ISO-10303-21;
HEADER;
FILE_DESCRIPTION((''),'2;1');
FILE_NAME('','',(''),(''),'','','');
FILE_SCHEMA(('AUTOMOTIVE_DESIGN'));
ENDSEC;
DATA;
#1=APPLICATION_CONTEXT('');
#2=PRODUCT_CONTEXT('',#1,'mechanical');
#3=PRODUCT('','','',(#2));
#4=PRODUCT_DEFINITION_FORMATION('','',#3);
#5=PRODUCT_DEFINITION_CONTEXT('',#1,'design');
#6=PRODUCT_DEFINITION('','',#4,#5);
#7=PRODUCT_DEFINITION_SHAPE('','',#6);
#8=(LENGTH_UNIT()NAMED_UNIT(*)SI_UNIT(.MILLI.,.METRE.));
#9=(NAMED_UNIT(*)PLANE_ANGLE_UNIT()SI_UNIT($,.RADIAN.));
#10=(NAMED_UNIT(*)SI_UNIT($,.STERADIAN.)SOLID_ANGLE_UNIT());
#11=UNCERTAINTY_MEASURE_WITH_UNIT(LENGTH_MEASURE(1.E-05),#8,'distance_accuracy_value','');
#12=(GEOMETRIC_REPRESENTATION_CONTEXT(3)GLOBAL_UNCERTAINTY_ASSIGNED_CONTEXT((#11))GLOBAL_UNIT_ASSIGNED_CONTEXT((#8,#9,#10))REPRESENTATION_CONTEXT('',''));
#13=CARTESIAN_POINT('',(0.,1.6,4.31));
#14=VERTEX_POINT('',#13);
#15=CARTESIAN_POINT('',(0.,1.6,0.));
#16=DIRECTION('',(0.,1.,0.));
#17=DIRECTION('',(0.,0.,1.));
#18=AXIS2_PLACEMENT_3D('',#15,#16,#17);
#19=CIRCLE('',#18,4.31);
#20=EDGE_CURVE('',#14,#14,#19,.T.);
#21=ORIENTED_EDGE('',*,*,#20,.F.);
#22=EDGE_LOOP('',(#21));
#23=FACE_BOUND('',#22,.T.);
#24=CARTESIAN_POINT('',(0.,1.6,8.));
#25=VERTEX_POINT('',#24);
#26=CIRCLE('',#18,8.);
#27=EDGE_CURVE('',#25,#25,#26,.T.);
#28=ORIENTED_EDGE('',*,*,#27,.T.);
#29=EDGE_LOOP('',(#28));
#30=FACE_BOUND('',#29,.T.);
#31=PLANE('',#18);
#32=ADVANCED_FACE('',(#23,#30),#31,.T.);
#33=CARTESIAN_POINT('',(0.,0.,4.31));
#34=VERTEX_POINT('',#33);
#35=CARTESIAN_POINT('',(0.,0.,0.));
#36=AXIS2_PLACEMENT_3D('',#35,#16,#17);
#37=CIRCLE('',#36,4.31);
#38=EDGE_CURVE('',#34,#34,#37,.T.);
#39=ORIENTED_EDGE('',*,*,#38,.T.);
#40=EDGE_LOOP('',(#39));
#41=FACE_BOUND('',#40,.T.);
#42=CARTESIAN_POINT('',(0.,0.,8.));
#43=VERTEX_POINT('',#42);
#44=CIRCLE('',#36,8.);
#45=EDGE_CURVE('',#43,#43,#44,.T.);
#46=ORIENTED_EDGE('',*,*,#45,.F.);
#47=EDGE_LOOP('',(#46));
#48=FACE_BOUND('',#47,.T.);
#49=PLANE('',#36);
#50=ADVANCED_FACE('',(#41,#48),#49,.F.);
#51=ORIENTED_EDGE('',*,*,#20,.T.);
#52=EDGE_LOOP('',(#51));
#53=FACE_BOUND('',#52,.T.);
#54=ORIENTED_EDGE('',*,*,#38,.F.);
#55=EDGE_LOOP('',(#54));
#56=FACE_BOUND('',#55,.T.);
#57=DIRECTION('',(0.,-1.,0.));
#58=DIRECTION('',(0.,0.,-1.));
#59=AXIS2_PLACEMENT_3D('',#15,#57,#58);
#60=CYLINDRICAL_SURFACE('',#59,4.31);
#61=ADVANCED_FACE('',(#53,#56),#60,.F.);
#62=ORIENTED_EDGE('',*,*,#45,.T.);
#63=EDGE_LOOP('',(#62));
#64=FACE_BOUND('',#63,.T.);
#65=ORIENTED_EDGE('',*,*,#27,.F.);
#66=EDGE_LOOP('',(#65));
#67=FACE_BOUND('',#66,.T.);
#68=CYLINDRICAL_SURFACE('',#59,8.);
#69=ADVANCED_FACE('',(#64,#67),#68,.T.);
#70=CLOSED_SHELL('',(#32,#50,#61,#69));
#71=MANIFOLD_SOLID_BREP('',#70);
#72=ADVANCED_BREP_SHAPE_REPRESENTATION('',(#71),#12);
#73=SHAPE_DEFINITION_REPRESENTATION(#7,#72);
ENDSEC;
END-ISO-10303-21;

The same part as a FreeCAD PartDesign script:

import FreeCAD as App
import Part
import Sketcher

doc = App.newDocument("Part")
body = doc.addObject("PartDesign::Body", "Body")

sketch1 = body.newObject("Sketcher::SketchObject", "Sketch")
sketch1.AttachmentSupport = (doc.getObject("XZ_Plane"), [""])
sketch1.MapMode = "FlatFace"
sketch1.addGeometry([
    Part.Circle(App.Vector(0, 0, 0), App.Vector(0, 0, 1), 8),
    Part.Circle(App.Vector(0, 0, 0), App.Vector(0, 0, 1), 4.3),
], False)
sketch1.addConstraint([
    Sketcher.Constraint("Coincident", 0, 3, -1, 1),
    Sketcher.Constraint("Coincident", 1, 3, -1, 1),
    Sketcher.Constraint("Diameter", 0, 16.0),
    Sketcher.Constraint("Diameter", 1, 8.62),
])
pad1 = body.newObject("PartDesign::Pad", "Pad")
pad1.Profile = sketch1
pad1.Length = 1.6
pad1.Reversed = True

doc.recompute()
